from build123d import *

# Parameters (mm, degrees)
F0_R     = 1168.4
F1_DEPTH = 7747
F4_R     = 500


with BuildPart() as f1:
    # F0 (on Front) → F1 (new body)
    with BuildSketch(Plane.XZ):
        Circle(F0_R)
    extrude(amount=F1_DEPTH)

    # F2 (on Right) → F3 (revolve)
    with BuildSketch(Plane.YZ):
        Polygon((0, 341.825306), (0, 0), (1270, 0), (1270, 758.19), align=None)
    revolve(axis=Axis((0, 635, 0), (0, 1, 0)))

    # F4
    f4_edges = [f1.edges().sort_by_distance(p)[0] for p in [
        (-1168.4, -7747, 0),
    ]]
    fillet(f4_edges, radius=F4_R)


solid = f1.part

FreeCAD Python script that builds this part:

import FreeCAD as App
import Part
import Sketcher
from FreeCAD import Vector
Q = App.Units.Quantity


def edges_at(feature, points):
    """Names of the edges that pass closest to the given points."""
    edges = feature.Shape.Edges
    near = lambda p: min(range(len(edges)), key=lambda i: edges[i].distToShape(Part.Vertex(*p))[0])
    return sorted({f"Edge{near(p) + 1}" for p in points})


def add_polygon(sketch, points):
    """Adds a closed chain of lines whose ends are joined by coincident constraints."""
    first, n = sketch.GeometryCount, len(points)
    for a, b in zip(points, points[1:] + points[:1]):
        sketch.addGeometry(Part.LineSegment(App.Vector(*a, 0), App.Vector(*b, 0)), False)
    for i in range(n):
        sketch.addConstraint(Sketcher.Constraint("Coincident", first + i, 2, first + (i + 1) % n, 1))

doc = App.newDocument("Part")
body = doc.addObject("PartDesign::Body", "Body")

sketch1 = doc.addObject("Sketcher::SketchObject", "Sketch")
body.addObject(sketch1)
sketch1.AttachmentSupport = (doc.XZ_Plane, [""])
sketch1.MapMode = "FlatFace"
sketch1.addGeometry(Part.Circle(Vector(0, 0, 0), Vector(0, 0, 1), 1168), False)
sketch1.addConstraint([
    Sketcher.Constraint("Coincident", 0, 3, -1, 1),
    Sketcher.Constraint("Diameter", 0, Q("92 in")),
])
pad1 = doc.addObject("PartDesign::Pad", "Pad")
body.addObject(pad1)
pad1.Profile = sketch1
pad1.Length = Q("305 in")

sketch2 = doc.addObject("Sketcher::SketchObject", "Sketch001")
body.addObject(sketch2)
sketch2.AttachmentSupport = (doc.YZ_Plane, [""])
sketch2.MapMode = "FlatFace"
add_polygon(sketch2, [(0, 342), (0, 0), (1270, 0), (1270, 758)])
sketch2.addConstraint([
    Sketcher.Constraint("Vertical", 0),
    Sketcher.Constraint("Horizontal", 1),
    Sketcher.Constraint("Vertical", 2),
    Sketcher.Constraint("Coincident", 0, 2, -1, 1),
    Sketcher.Constraint("DistanceX", 1, 1, 1, 2, Q("50 in")),
    Sketcher.Constraint("DistanceY", 2, 1, 2, 2, Q("29.85 in")),
    Sketcher.Constraint("DistanceY", 0, 2, 0, 1, Q("341.825306 mm")),
])
revolution = doc.addObject("PartDesign::Revolution", "Revolution")
body.addObject(revolution)
revolution.Profile = sketch2
revolution.ReferenceAxis = (sketch2, ["H_Axis"])
revolution.Angle = 360
doc.recompute()

fillet = doc.addObject("PartDesign::Fillet", "Fillet")
body.addObject(fillet)
fillet.Base = (revolution, edges_at(revolution, [(-1168.4, -7747, 0)]))
fillet.Radius = 500

doc.recompute()
